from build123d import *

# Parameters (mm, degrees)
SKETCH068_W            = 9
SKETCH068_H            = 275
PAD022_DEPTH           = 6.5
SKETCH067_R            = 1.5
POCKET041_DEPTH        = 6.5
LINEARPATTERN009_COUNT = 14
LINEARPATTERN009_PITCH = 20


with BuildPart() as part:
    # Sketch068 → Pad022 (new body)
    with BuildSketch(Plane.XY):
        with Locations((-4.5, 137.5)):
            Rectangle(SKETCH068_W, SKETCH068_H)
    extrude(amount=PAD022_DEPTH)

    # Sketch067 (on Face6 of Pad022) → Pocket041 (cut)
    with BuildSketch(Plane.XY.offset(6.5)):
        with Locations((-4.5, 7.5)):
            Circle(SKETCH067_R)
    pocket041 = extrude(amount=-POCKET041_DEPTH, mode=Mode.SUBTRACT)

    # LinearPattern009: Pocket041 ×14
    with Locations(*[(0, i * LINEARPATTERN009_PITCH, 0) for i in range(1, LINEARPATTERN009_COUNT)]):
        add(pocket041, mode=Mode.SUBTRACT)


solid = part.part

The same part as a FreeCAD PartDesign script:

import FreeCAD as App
import Part
import Sketcher
from FreeCAD import Vector


def add_polygon(sketch, points):
    """Adds a closed chain of lines whose ends are joined by coincident constraints."""
    first, n = sketch.GeometryCount, len(points)
    for a, b in zip(points, points[1:] + points[:1]):
        sketch.addGeometry(Part.LineSegment(App.Vector(*a, 0), App.Vector(*b, 0)), False)
    for i in range(n):
        sketch.addConstraint(Sketcher.Constraint("Coincident", first + i, 2, first + (i + 1) % n, 1))

doc = App.newDocument("Part")
body = doc.addObject("PartDesign::Body", "Body")

# Sketch on XY plane
sketch1 = body.newObject("Sketcher::SketchObject", "Sketch")
sketch1.AttachmentSupport = (doc.getObject("XY_Plane"), [""])
sketch1.MapMode = "FlatFace"
add_polygon(sketch1, [(-9, 275), (-9, 0), (0, 0), (0, 275)])  # lines 0-3
sketch1.addConstraint([
    Sketcher.Constraint("Vertical", 0),
    Sketcher.Constraint("Horizontal", 1),
    Sketcher.Constraint("Vertical", 2),
    Sketcher.Constraint("Horizontal", 3),
    Sketcher.Constraint("Coincident", 1, 2, -1, 1),
    Sketcher.Constraint("DistanceX", 1, 1, 1, 2, 9.0),
    Sketcher.Constraint("DistanceY", 0, 2, 0, 1, 275.0),
])
pad1 = body.newObject("PartDesign::Pad", "Pad")
pad1.Profile = sketch1
pad1.Length = 6.5

# Sketch on XY plane
sketch2 = body.newObject("Sketcher::SketchObject", "Sketch001")
sketch2.AttachmentSupport = (doc.getObject("XY_Plane"), [""])
sketch2.MapMode = "FlatFace"
sketch2.AttachmentOffset = App.Placement(Vector(0, 0, 6.5), App.Rotation())
sketch2.addGeometry(Part.Circle(Vector(-4.5, 7.5, 0), Vector(0, 0, 1), 1.5), False)
sketch2.addConstraint([
    Sketcher.Constraint("Diameter", 0, 3.0),
    Sketcher.Constraint("DistanceX", 0, 3, -1, 1, 4.5),
    Sketcher.Constraint("DistanceY", -1, 1, 0, 3, 7.5),
])
pocket1 = body.newObject("PartDesign::Pocket", "Pocket")
pocket1.Profile = sketch2
pocket1.Length = 6.5
doc.recompute()

linearpattern = body.newObject("PartDesign::LinearPattern", "LinearPattern")
linearpattern.Originals = [pocket1]
linearpattern.Direction = (doc.getObject("Y_Axis"), [""])
linearpattern.Mode = "offset"
linearpattern.Offset = 20
linearpattern.Occurrences = 14
body.Tip = linearpattern

doc.recompute()
